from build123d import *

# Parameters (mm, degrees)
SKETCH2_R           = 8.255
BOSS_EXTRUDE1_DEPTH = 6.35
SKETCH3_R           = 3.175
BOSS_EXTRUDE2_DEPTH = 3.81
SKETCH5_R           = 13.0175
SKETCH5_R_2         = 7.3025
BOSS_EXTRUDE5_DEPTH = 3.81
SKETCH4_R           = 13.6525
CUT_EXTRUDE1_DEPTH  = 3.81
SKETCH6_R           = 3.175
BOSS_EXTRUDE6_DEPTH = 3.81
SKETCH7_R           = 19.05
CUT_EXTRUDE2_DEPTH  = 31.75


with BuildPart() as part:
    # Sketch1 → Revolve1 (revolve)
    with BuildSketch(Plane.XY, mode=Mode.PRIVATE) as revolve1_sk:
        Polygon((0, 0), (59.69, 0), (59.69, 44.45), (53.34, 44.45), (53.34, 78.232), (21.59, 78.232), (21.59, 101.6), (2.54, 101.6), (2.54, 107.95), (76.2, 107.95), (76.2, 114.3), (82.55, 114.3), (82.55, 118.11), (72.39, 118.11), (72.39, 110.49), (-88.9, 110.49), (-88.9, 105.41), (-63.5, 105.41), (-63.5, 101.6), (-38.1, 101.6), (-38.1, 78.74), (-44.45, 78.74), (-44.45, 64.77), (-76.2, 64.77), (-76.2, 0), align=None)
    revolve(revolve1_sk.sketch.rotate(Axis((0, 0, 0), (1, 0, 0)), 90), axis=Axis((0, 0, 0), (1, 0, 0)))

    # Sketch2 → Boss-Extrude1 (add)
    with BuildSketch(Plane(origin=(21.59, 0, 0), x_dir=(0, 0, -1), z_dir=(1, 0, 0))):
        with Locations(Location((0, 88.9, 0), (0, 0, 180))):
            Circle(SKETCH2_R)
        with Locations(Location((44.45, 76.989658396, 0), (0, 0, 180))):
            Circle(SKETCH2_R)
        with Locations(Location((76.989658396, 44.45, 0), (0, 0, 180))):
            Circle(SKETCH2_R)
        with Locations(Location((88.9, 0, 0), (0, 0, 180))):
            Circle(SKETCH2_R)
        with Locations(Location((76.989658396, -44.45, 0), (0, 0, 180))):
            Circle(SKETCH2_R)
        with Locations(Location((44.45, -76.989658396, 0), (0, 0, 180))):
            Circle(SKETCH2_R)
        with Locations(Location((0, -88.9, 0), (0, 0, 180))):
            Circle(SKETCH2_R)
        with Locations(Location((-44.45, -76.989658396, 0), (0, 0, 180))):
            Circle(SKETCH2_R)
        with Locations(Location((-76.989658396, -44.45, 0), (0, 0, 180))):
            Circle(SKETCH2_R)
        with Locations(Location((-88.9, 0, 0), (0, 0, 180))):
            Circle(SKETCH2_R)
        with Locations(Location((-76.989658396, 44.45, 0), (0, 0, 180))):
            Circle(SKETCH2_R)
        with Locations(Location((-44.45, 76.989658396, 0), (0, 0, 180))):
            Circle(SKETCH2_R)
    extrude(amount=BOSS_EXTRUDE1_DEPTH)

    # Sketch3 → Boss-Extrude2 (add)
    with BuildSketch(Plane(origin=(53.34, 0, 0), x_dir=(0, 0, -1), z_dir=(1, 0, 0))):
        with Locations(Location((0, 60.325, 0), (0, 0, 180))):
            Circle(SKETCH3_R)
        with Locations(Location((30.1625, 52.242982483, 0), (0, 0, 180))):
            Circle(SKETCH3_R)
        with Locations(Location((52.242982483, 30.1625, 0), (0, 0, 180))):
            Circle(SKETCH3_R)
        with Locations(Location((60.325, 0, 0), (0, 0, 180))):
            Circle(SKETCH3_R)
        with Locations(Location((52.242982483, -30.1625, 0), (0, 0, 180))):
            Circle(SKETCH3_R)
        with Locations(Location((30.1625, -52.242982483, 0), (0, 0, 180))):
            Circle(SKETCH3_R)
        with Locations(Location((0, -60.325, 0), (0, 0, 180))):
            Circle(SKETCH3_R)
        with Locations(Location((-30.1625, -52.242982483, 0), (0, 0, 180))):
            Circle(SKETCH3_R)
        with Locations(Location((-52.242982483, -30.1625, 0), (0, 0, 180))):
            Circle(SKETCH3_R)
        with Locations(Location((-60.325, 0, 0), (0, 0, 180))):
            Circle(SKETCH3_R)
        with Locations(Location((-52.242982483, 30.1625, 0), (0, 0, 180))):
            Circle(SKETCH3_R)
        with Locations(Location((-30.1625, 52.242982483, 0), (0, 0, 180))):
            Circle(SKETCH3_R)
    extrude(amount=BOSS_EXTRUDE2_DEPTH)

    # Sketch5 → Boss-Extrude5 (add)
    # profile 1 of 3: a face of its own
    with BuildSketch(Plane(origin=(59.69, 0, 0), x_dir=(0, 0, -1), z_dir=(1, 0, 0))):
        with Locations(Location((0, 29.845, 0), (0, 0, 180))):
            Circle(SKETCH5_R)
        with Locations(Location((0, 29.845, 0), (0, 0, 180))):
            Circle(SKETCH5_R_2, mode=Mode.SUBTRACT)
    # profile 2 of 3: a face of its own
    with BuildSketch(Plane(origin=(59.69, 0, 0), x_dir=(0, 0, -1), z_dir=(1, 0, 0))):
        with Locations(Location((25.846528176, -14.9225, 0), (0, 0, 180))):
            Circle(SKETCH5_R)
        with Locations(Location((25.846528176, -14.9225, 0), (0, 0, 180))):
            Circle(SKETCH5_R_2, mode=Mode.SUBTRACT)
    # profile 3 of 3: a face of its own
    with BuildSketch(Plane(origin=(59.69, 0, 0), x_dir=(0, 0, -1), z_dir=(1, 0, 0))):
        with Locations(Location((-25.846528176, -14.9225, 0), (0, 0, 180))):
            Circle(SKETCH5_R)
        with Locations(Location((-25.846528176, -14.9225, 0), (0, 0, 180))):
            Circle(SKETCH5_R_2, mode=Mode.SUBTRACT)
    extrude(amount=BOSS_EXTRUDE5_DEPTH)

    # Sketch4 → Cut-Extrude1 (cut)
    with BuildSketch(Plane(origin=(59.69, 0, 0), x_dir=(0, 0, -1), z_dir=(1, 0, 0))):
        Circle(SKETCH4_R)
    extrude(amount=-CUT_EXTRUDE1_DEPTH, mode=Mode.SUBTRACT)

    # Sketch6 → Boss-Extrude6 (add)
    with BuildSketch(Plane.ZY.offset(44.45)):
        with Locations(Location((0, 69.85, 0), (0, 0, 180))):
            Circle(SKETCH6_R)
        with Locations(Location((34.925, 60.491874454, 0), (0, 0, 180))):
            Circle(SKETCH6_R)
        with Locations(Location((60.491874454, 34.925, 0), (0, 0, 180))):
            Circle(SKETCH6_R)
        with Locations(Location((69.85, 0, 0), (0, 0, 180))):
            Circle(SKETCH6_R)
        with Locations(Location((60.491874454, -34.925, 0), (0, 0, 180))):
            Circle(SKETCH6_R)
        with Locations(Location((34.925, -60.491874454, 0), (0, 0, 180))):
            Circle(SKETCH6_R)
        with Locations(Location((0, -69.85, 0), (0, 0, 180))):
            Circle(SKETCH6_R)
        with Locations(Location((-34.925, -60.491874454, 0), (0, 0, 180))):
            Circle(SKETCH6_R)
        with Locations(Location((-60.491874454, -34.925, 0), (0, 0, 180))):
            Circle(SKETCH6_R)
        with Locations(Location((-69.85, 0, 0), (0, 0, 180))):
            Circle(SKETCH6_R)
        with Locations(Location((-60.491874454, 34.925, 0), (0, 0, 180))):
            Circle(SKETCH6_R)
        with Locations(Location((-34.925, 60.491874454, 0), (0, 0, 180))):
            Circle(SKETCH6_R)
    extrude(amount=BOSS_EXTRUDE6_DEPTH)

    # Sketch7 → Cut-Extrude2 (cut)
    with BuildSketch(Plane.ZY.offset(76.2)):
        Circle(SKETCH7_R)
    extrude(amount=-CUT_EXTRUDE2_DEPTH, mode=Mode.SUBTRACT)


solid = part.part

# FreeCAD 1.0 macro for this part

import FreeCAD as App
import Part
import Sketcher
Q = App.Units.Quantity


def add_polygon(sketch, points):
    """Adds a closed chain of lines whose ends are joined by coincident constraints."""
    first, n = sketch.GeometryCount, len(points)
    for a, b in zip(points, points[1:] + points[:1]):
        sketch.addGeometry(Part.LineSegment(App.Vector(*a, 0), App.Vector(*b, 0)), False)
    for i in range(n):
        sketch.addConstraint(Sketcher.Constraint("Coincident", first + i, 2, first + (i + 1) % n, 1))

doc = App.newDocument("Part")
body = doc.addObject("PartDesign::Body", "Body")

# Sketch on XY plane
sketch1 = body.newObject("Sketcher::SketchObject", "Sketch")
sketch1.AttachmentSupport = (doc.getObject("XY_Plane"), [""])
sketch1.MapMode = "FlatFace"
add_polygon(sketch1, [(59.7, 0), (59.7, 44.5), (53.3, 44.5), (53.3, 78.2), (21.6, 78.2), (21.6, 101.6), (2.5, 101.6), (2.5, 108), (76.2, 108), (76.2, 114.3), (82.5, 114.3), (82.5, 118.1), (72.4, 118.1), (72.4, 110.5), (-88.9, 110.5), (-88.9, 105.4), (-63.5, 105.4), (-63.5, 101.6), (-38.1, 101.6), (-38.1, 78.7), (-44.5, 78.7), (-44.5, 64.8), (-76.2, 64.8), (-76.2, 0)])  # lines 0-23
sketch1.addConstraint([
    Sketcher.Constraint("Vertical", 0),
    Sketcher.Constraint("Horizontal", 1),
    Sketcher.Constraint("Vertical", 2),
    Sketcher.Constraint("Horizontal", 3),
    Sketcher.Constraint("Vertical", 4),
    Sketcher.Constraint("Horizontal", 5),
    Sketcher.Constraint("Vertical", 6),
    Sketcher.Constraint("Horizontal", 7),
    Sketcher.Constraint("Vertical", 8),
    Sketcher.Constraint("Horizontal", 9),
    Sketcher.Constraint("Vertical", 10),
    Sketcher.Constraint("Horizontal", 11),
    Sketcher.Constraint("Vertical", 12),
    Sketcher.Constraint("Horizontal", 13),
    Sketcher.Constraint("Vertical", 14),
    Sketcher.Constraint("Horizontal", 15),
    Sketcher.Constraint("Vertical", 16),
    Sketcher.Constraint("Horizontal", 17),
    Sketcher.Constraint("Vertical", 18),
    Sketcher.Constraint("Horizontal", 19),
    Sketcher.Constraint("Vertical", 20),
    Sketcher.Constraint("Horizontal", 21),
    Sketcher.Constraint("Vertical", 22),
    Sketcher.Constraint("Horizontal", 23),
    Sketcher.Constraint("PointOnObject", 22, 2, -1),
    Sketcher.Constraint("Horizontal", 5, 2, 16, 2),
    Sketcher.Constraint("Equal", 1, 9),
    Sketcher.Constraint("Equal", 15, 17),
    Sketcher.Constraint("Equal", 9, 19),
    Sketcher.Constraint("Equal", 3, 21),
    Sketcher.Constraint("Equal", 19, 6),
    Sketcher.Constraint("Equal", 6, 8),
    Sketcher.Constraint("Equal", 10, 16),
    Sketcher.Constraint("DistanceX", 15, 1, 15, 2, Q("1 in")),
    Sketcher.Constraint("DistanceX", 7, 1, 7, 2, Q("2.9 in")),
    Sketcher.Constraint("DistanceX", 11, 2, 11, 1, Q("0.4 in")),
    Sketcher.Constraint("DistanceY", 12, 2, 12, 1, Q("0.3 in")),
    Sketcher.Constraint("DistanceY", 14, 2, 14, 1, Q("0.2 in")),
    Sketcher.Constraint("DistanceY", 18, 2, 18, 1, Q("0.9 in")),
    Sketcher.Constraint("DistanceY", -1, 1, 4, 2, Q("4 in")),
    Sketcher.Constraint("DistanceX", -1, 1, 7, 2, Q("3 in")),
    Sketcher.Constraint("DistanceX", 21, 2, -1, 1, Q("3 in")),
    Sketcher.Constraint("DistanceX", 5, 2, 2, 2, Q("2 in")),
    Sketcher.Constraint("DistanceX", 3, 2, 3, 1, Q("1.25 in")),
    Sketcher.Constraint("DistanceY", 0, 1, 0, 2, Q("1.75 in")),
    Sketcher.Constraint("DistanceY", 2, 1, 2, 2, Q("1.33 in")),
    Sketcher.Constraint("DistanceY", 10, 1, 10, 2, Q("0.15 in")),
    Sketcher.Constraint("DistanceY", 20, 2, 20, 1, Q("0.55 in")),
])
revolution = body.newObject("PartDesign::Revolution", "Revolution")
revolution.Profile = sketch1
revolution.ReferenceAxis = (sketch1, ["H_Axis"])
revolution.Angle = 360

# Sketch on YZ plane
sketch2 = body.newObject("Sketcher::SketchObject", "Sketch001")
sketch2.AttachmentSupport = (doc.getObject("YZ_Plane"), [""])
sketch2.MapMode = "FlatFace"
sketch2.AttachmentOffset = App.Placement(App.Vector(0, 0, 0.85 * 25.4), App.Rotation())
sketch2.addGeometry([
    Part.Circle(App.Vector(89, 0, 0), App.Vector(0, 0, 1), 8),  # 0
    Part.Circle(App.Vector(77, -44, 0), App.Vector(0, 0, 1), 8),  # 1
    Part.Circle(App.Vector(44, -77, 0), App.Vector(0, 0, 1), 8),  # 2
    Part.Circle(App.Vector(0, -89, 0), App.Vector(0, 0, 1), 8),  # 3
    Part.Circle(App.Vector(-44, -77, 0), App.Vector(0, 0, 1), 8),  # 4
    Part.Circle(App.Vector(-77, -44, 0), App.Vector(0, 0, 1), 8),  # 5
    Part.Circle(App.Vector(-89, 0, 0), App.Vector(0, 0, 1), 8),  # 6
    Part.Circle(App.Vector(-77, 44, 0), App.Vector(0, 0, 1), 8),  # 7
    Part.Circle(App.Vector(-44, 77, 0), App.Vector(0, 0, 1), 8),  # 8
    Part.Circle(App.Vector(0, 89, 0), App.Vector(0, 0, 1), 8),  # 9
    Part.Circle(App.Vector(44, 77, 0), App.Vector(0, 0, 1), 8),  # 10
    Part.Circle(App.Vector(77, 44, 0), App.Vector(0, 0, 1), 8),  # 11
], False)
sketch2.addConstraint([
    Sketcher.Constraint("Equal", 0, 1),
    Sketcher.Constraint("Equal", 1, 2),
    Sketcher.Constraint("Equal", 2, 3),
    Sketcher.Constraint("Equal", 3, 4),
    Sketcher.Constraint("Equal", 4, 5),
    Sketcher.Constraint("Equal", 5, 6),
    Sketcher.Constraint("Equal", 6, 7),
    Sketcher.Constraint("Equal", 7, 8),
    Sketcher.Constraint("Equal", 8, 9),
    Sketcher.Constraint("Equal", 9, 10),
    Sketcher.Constraint("Equal", 10, 11),
    Sketcher.Constraint("Symmetric", 0, 3, 6, 3, -1, 1),
    Sketcher.Constraint("Symmetric", 1, 3, 7, 3, -1, 1),
    Sketcher.Constraint("Symmetric", 2, 3, 8, 3, -1, 1),
    Sketcher.Constraint("Symmetric", 3, 3, 9, 3, -1, 1),
    Sketcher.Constraint("Symmetric", 4, 3, 10, 3, -1, 1),
    Sketcher.Constraint("Symmetric", 5, 3, 11, 3, -1, 1),
    Sketcher.Constraint("Symmetric", 2, 3, 4, 3, -2),
    Sketcher.Constraint("Symmetric", 1, 3, 5, 3, -2),
    Sketcher.Constraint("PointOnObject", 0, 3, -1),
    Sketcher.Constraint("PointOnObject", 3, 3, -2),
    Sketcher.Constraint("Diameter", 0, Q("0.65 in")),
    Sketcher.Constraint("DistanceX", -1, 1, 0, 3, Q("3.5 in")),
    Sketcher.Constraint("DistanceY", 3, 3, -1, 1, Q("3.5 in")),
    Sketcher.Constraint("DistanceX", 4, 3, 2, 3, Q("3.5 in")),
    Sketcher.Constraint("DistanceY", 5, 3, 7, 3, Q("3.5 in")),
    Sketcher.Constraint("DistanceX", -1, 1, 1, 3, 76.989658),
    Sketcher.Constraint("DistanceY", 2, 3, -1, 1, 76.989658),
])
pad1 = body.newObject("PartDesign::Pad", "Pad")
pad1.Profile = sketch2
pad1.Length = Q("0.25 in")

# Sketch on YZ plane
sketch3 = body.newObject("Sketcher::SketchObject", "Sketch002")
sketch3.AttachmentSupport = (doc.getObject("YZ_Plane"), [""])
sketch3.MapMode = "FlatFace"
sketch3.AttachmentOffset = App.Placement(App.Vector(0, 0, 2.1 * 25.4), App.Rotation())
sketch3.addGeometry([
    Part.Circle(App.Vector(60.3, 0, 0), App.Vector(0, 0, 1), 3.2),  # 0
    Part.Circle(App.Vector(52.2, -30.2, 0), App.Vector(0, 0, 1), 3.2),  # 1
    Part.Circle(App.Vector(30.2, -52.2, 0), App.Vector(0, 0, 1), 3.2),  # 2
    Part.Circle(App.Vector(0, -60.3, 0), App.Vector(0, 0, 1), 3.2),  # 3
    Part.Circle(App.Vector(-30.2, -52.2, 0), App.Vector(0, 0, 1), 3.2),  # 4
    Part.Circle(App.Vector(-52.2, -30.2, 0), App.Vector(0, 0, 1), 3.2),  # 5
    Part.Circle(App.Vector(-60.3, 0, 0), App.Vector(0, 0, 1), 3.2),  # 6
    Part.Circle(App.Vector(-52.2, 30.2, 0), App.Vector(0, 0, 1), 3.2),  # 7
    Part.Circle(App.Vector(-30.2, 52.2, 0), App.Vector(0, 0, 1), 3.2),  # 8
    Part.Circle(App.Vector(0, 60.3, 0), App.Vector(0, 0, 1), 3.2),  # 9
    Part.Circle(App.Vector(30.2, 52.2, 0), App.Vector(0, 0, 1), 3.2),  # 10
    Part.Circle(App.Vector(52.2, 30.2, 0), App.Vector(0, 0, 1), 3.2),  # 11
], False)
sketch3.addConstraint([
    Sketcher.Constraint("Equal", 0, 1),
    Sketcher.Constraint("Equal", 1, 2),
    Sketcher.Constraint("Equal", 2, 3),
    Sketcher.Constraint("Equal", 3, 4),
    Sketcher.Constraint("Equal", 4, 5),
    Sketcher.Constraint("Equal", 5, 6),
    Sketcher.Constraint("Equal", 6, 7),
    Sketcher.Constraint("Equal", 7, 8),
    Sketcher.Constraint("Equal", 8, 9),
    Sketcher.Constraint("Equal", 9, 10),
    Sketcher.Constraint("Equal", 10, 11),
    Sketcher.Constraint("Symmetric", 0, 3, 6, 3, -1, 1),
    Sketcher.Constraint("Symmetric", 1, 3, 7, 3, -1, 1),
    Sketcher.Constraint("Symmetric", 2, 3, 8, 3, -1, 1),
    Sketcher.Constraint("Symmetric", 3, 3, 9, 3, -1, 1),
    Sketcher.Constraint("Symmetric", 4, 3, 10, 3, -1, 1),
    Sketcher.Constraint("Symmetric", 5, 3, 11, 3, -1, 1),
    Sketcher.Constraint("Symmetric", 2, 3, 4, 3, -2),
    Sketcher.Constraint("Symmetric", 1, 3, 5, 3, -2),
    Sketcher.Constraint("PointOnObject", 0, 3, -1),
    Sketcher.Constraint("PointOnObject", 3, 3, -2),
    Sketcher.Constraint("Diameter", 0, Q("0.25 in")),
    Sketcher.Constraint("DistanceX", -1, 1, 0, 3, Q("2.375 in")),
    Sketcher.Constraint("DistanceY", 1, 3, -1, 1, Q("1.1875 in")),
    Sketcher.Constraint("DistanceX", -1, 1, 2, 3, Q("1.1875 in")),
    Sketcher.Constraint("DistanceY", 3, 3, -1, 1, Q("2.375 in")),
    Sketcher.Constraint("DistanceX", -1, 1, 1, 3, 52.242982),
    Sketcher.Constraint("DistanceY", 2, 3, -1, 1, 52.242982),
])
pad2 = body.newObject("PartDesign::Pad", "Pad001")
pad2.Profile = sketch3
pad2.Length = Q("0.15 in")

# Sketch on YZ plane
sketch4 = body.newObject("Sketcher::SketchObject", "Sketch003")
sketch4.AttachmentSupport = (doc.getObject("YZ_Plane"), [""])
sketch4.MapMode = "FlatFace"
sketch4.AttachmentOffset = App.Placement(App.Vector(0, 0, 2.35 * 25.4), App.Rotation())
sketch4.addGeometry([
    Part.Circle(App.Vector(30, 0, 0), App.Vector(0, 0, 1), 13),  # 0
    Part.Circle(App.Vector(30, 0, 0), App.Vector(0, 0, 1), 7),  # 1
    Part.Circle(App.Vector(-15, -26, 0), App.Vector(0, 0, 1), 13),  # 2
    Part.Circle(App.Vector(-15, -26, 0), App.Vector(0, 0, 1), 7),  # 3
    Part.Circle(App.Vector(-15, 26, 0), App.Vector(0, 0, 1), 13),  # 4
    Part.Circle(App.Vector(-15, 26, 0), App.Vector(0, 0, 1), 7),  # 5
], False)
sketch4.addConstraint([
    Sketcher.Constraint("Coincident", 1, 3, 0, 3),
    Sketcher.Constraint("Coincident", 3, 3, 2, 3),
    Sketcher.Constraint("Coincident", 5, 3, 4, 3),
    Sketcher.Constraint("Equal", 0, 2),
    Sketcher.Constraint("Equal", 1, 3),
    Sketcher.Constraint("Equal", 2, 4),
    Sketcher.Constraint("Equal", 3, 5),
    Sketcher.Constraint("Symmetric", 2, 3, 4, 3, -1),
    Sketcher.Constraint("PointOnObject", 0, 3, -1),
    Sketcher.Constraint("Diameter", 0, Q("1.025 in")),
    Sketcher.Constraint("Diameter", 1, Q("0.575 in")),
    Sketcher.Constraint("DistanceX", -1, 1, 0, 3, Q("1.175 in")),
    Sketcher.Constraint("DistanceX", 2, 3, -1, 1, Q("0.5875 in")),
    Sketcher.Constraint("DistanceY", 2, 3, -1, 1, 25.846528),
])
pad3 = body.newObject("PartDesign::Pad", "Pad002")
pad3.Profile = sketch4
pad3.Length = Q("0.15 in")

# Sketch on YZ plane
sketch5 = body.newObject("Sketcher::SketchObject", "Sketch004")
sketch5.AttachmentSupport = (doc.getObject("YZ_Plane"), [""])
sketch5.MapMode = "FlatFace"
sketch5.AttachmentOffset = App.Placement(App.Vector(0, 0, 2.35 * 25.4), App.Rotation())
sketch5.addGeometry(Part.Circle(App.Vector(0, 0, 0), App.Vector(0, 0, 1), 14), False)
sketch5.addConstraint([
    Sketcher.Constraint("Coincident", 0, 3, -1, 1),
    Sketcher.Constraint("Diameter", 0, Q("1.075 in")),
])
pocket1 = body.newObject("PartDesign::Pocket", "Pocket")
pocket1.Profile = sketch5
pocket1.Length = Q("0.15 in")

# Sketch on YZ plane
sketch6 = body.newObject("Sketcher::SketchObject", "Sketch005")
sketch6.AttachmentSupport = (doc.getObject("YZ_Plane"), [""])
sketch6.MapMode = "FlatFace"
sketch6.AttachmentOffset = App.Placement(App.Vector(0, 0, -1.75 * 25.4), App.Rotation())
sketch6.addGeometry([
    Part.Circle(App.Vector(69.8, 0, 0), App.Vector(0, 0, 1), 3.2),  # 0
    Part.Circle(App.Vector(60.5, 34.9, 0), App.Vector(0, 0, 1), 3.2),  # 1
    Part.Circle(App.Vector(34.9, 60.5, 0), App.Vector(0, 0, 1), 3.2),  # 2
    Part.Circle(App.Vector(0, 69.8, 0), App.Vector(0, 0, 1), 3.2),  # 3
    Part.Circle(App.Vector(-34.9, 60.5, 0), App.Vector(0, 0, 1), 3.2),  # 4
    Part.Circle(App.Vector(-60.5, 34.9, 0), App.Vector(0, 0, 1), 3.2),  # 5
    Part.Circle(App.Vector(-69.8, 0, 0), App.Vector(0, 0, 1), 3.2),  # 6
    Part.Circle(App.Vector(-60.5, -34.9, 0), App.Vector(0, 0, 1), 3.2),  # 7
    Part.Circle(App.Vector(-34.9, -60.5, 0), App.Vector(0, 0, 1), 3.2),  # 8
    Part.Circle(App.Vector(0, -69.8, 0), App.Vector(0, 0, 1), 3.2),  # 9
    Part.Circle(App.Vector(34.9, -60.5, 0), App.Vector(0, 0, 1), 3.2),  # 10
    Part.Circle(App.Vector(60.5, -34.9, 0), App.Vector(0, 0, 1), 3.2),  # 11
], False)
sketch6.addConstraint([
    Sketcher.Constraint("Equal", 0, 1),
    Sketcher.Constraint("Equal", 1, 2),
    Sketcher.Constraint("Equal", 2, 3),
    Sketcher.Constraint("Equal", 3, 4),
    Sketcher.Constraint("Equal", 4, 5),
    Sketcher.Constraint("Equal", 5, 6),
    Sketcher.Constraint("Equal", 6, 7),
    Sketcher.Constraint("Equal", 7, 8),
    Sketcher.Constraint("Equal", 8, 9),
    Sketcher.Constraint("Equal", 9, 10),
    Sketcher.Constraint("Equal", 10, 11),
    Sketcher.Constraint("Symmetric", 0, 3, 6, 3, -1, 1),
    Sketcher.Constraint("Symmetric", 1, 3, 7, 3, -1, 1),
    Sketcher.Constraint("Symmetric", 2, 3, 8, 3, -1, 1),
    Sketcher.Constraint("Symmetric", 3, 3, 9, 3, -1, 1),
    Sketcher.Constraint("Symmetric", 4, 3, 10, 3, -1, 1),
    Sketcher.Constraint("Symmetric", 5, 3, 11, 3, -1, 1),
    Sketcher.Constraint("Symmetric", 2, 3, 4, 3, -2),
    Sketcher.Constraint("Symmetric", 1, 3, 5, 3, -2),
    Sketcher.Constraint("PointOnObject", 0, 3, -1),
    Sketcher.Constraint("PointOnObject", 3, 3, -2),
    Sketcher.Constraint("Diameter", 0, Q("0.25 in")),
    Sketcher.Constraint("DistanceX", -1, 1, 0, 3, Q("2.75 in")),
    Sketcher.Constraint("DistanceY", -1, 1, 3, 3, Q("2.75 in")),
    Sketcher.Constraint("DistanceX", 4, 3, 2, 3, Q("2.75 in")),
    Sketcher.Constraint("DistanceY", 7, 3, 5, 3, Q("2.75 in")),
    Sketcher.Constraint("DistanceX", 5, 3, 1, 3, 120.983749),
    Sketcher.Constraint("DistanceY", 8, 3, 4, 3, 120.983749),
])
pad4 = body.newObject("PartDesign::Pad", "Pad003")
pad4.Profile = sketch6
pad4.Length = Q("0.15 in")
pad4.Reversed = True

# Sketch on YZ plane
sketch7 = body.newObject("Sketcher::SketchObject", "Sketch006")
sketch7.AttachmentSupport = (doc.getObject("YZ_Plane"), [""])
sketch7.MapMode = "FlatFace"
sketch7.AttachmentOffset = App.Placement(App.Vector(0, 0, -3 * 25.4), App.Rotation())
sketch7.addGeometry(Part.Circle(App.Vector(0, 0, 0), App.Vector(0, 0, 1), 19), False)
sketch7.addConstraint([
    Sketcher.Constraint("Coincident", 0, 3, -1, 1),
    Sketcher.Constraint("Diameter", 0, Q("1.5 in")),
])
pocket2 = body.newObject("PartDesign::Pocket", "Pocket001")
pocket2.Profile = sketch7
pocket2.Length = Q("1.25 in")
pocket2.Reversed = True

doc.recompute()
